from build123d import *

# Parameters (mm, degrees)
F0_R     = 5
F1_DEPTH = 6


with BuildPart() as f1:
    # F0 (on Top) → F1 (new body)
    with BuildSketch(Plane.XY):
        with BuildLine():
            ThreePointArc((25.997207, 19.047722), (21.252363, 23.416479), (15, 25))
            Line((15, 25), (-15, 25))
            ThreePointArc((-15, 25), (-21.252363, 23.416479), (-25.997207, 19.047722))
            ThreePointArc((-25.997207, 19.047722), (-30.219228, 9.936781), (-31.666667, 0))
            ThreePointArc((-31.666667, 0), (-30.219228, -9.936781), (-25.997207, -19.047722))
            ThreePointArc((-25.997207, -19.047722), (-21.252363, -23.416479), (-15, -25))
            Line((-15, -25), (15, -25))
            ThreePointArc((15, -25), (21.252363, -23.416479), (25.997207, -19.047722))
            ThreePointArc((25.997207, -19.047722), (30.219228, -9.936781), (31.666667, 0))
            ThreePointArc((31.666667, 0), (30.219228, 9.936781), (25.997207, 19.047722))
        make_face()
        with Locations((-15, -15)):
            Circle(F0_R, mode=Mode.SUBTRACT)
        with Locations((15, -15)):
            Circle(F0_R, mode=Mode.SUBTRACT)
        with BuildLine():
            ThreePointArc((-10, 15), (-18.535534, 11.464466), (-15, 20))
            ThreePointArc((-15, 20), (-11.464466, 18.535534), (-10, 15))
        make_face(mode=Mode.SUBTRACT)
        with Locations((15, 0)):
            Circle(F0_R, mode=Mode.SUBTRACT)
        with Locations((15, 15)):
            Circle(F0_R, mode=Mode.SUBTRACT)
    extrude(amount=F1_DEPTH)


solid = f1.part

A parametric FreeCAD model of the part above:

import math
import FreeCAD as App
import Part
import Sketcher
from FreeCAD import Vector

doc = App.newDocument("Part")
body = doc.addObject("PartDesign::Body", "Body")

# Sketch on XY plane
sketch1 = doc.addObject("Sketcher::SketchObject", "Sketch")
body.addObject(sketch1)
sketch1.AttachmentSupport = (doc.XY_Plane, [""])
sketch1.MapMode = "FlatFace"
sketch1.addGeometry([
    Part.ArcOfCircle(Part.Circle(Vector(15, 11.9, 0), Vector(0, 0, 1), 13.1), math.radians(33), math.radians(90)),  # 0
    Part.LineSegment(Vector(15, 25, 0), Vector(-15, 25, 0)),  # 1
    Part.ArcOfCircle(Part.Circle(Vector(-15, 11.9, 0), Vector(0, 0, 1), 13.1), math.radians(90), math.radians(147)),  # 2
    Part.ArcOfCircle(Part.Circle(Vector(3.2, 0, 0), Vector(0, 0, 1), 34.8), math.radians(147), math.radians(180)),  # 3
    Part.ArcOfCircle(Part.Circle(Vector(3.2, 0, 0), Vector(0, 0, 1), 34.8), math.radians(-180), math.radians(-147)),  # 4
    Part.ArcOfCircle(Part.Circle(Vector(-15, -11.9, 0), Vector(0, 0, 1), 13.1), math.radians(-147), math.radians(-90)),  # 5
    Part.LineSegment(Vector(-15, -25, 0), Vector(15, -25, 0)),  # 6
    Part.ArcOfCircle(Part.Circle(Vector(15, -11.9, 0), Vector(0, 0, 1), 13.1), math.radians(-90), math.radians(-33)),  # 7
    Part.ArcOfCircle(Part.Circle(Vector(-3.2, 0, 0), Vector(0, 0, 1), 34.8), math.radians(-33), math.radians(0)),  # 8
    Part.ArcOfCircle(Part.Circle(Vector(-3.2, 0, 0), Vector(0, 0, 1), 34.8), math.radians(0), math.radians(33)),  # 9
    Part.Circle(Vector(-15, -15, 0), Vector(0, 0, 1), 5),  # 10
    Part.Circle(Vector(15, -15, 0), Vector(0, 0, 1), 5),  # 11
    Part.Circle(Vector(15, 0, 0), Vector(0, 0, 1), 5),  # 12
    Part.ArcOfCircle(Part.Circle(Vector(-15, 15, 0), Vector(0, 0, 1), 5), math.radians(0), math.radians(90)),  # 13
    Part.ArcOfCircle(Part.Circle(Vector(-15, 15, 0), Vector(0, 0, 1), 5), math.radians(90), math.radians(360)),  # 14
    Part.Circle(Vector(15, 15, 0), Vector(0, 0, 1), 5),  # 15
], False)
sketch1.addConstraint([
    Sketcher.Constraint("Tangent", 0, 2, 1, 1),
    Sketcher.Constraint("Tangent", 1, 2, 2, 1),
    Sketcher.Constraint("Tangent", 2, 2, 3, 1),
    Sketcher.Constraint("Tangent", 3, 2, 4, 1),
    Sketcher.Constraint("Tangent", 4, 2, 5, 1),
    Sketcher.Constraint("Tangent", 5, 2, 6, 1),
    Sketcher.Constraint("Tangent", 6, 2, 7, 1),
    Sketcher.Constraint("Tangent", 7, 2, 8, 1),
    Sketcher.Constraint("Tangent", 8, 2, 9, 1),
    Sketcher.Constraint("Tangent", 9, 2, 0, 1),
    Sketcher.Constraint("Tangent", 13, 1, 14, 2),
    Sketcher.Constraint("Coincident", 14, 1, 13, 2),
    Sketcher.Constraint("Horizontal", 1),
    Sketcher.Constraint("Horizontal", 6),
    Sketcher.Constraint("Equal", 0, 2),
    Sketcher.Constraint("Equal", 3, 4),
    Sketcher.Constraint("Equal", 2, 5),
    Sketcher.Constraint("Equal", 5, 7),
    Sketcher.Constraint("Equal", 4, 8),
    Sketcher.Constraint("Equal", 8, 9),
    Sketcher.Constraint("Equal", 10, 11),
    Sketcher.Constraint("Equal", 11, 12),
    Sketcher.Constraint("Equal", 12, 13),
    Sketcher.Constraint("Equal", 14, 15),
    Sketcher.Constraint("Symmetric", 0, 3, 5, 3, -1, 1),
    Sketcher.Constraint("Symmetric", 11, 3, 13, 3, -1, 1),
    Sketcher.Constraint("Symmetric", 10, 3, 15, 3, -1, 1),
    Sketcher.Constraint("Symmetric", 3, 2, 8, 2, -1, 1),
    Sketcher.Constraint("Symmetric", 10, 3, 11, 3, -2),
    Sketcher.Constraint("PointOnObject", 3, 3, -1),
    Sketcher.Constraint("PointOnObject", 12, 3, -1),
    Sketcher.Constraint("PointOnObject", 3, 2, -1),
    Sketcher.Constraint("Horizontal", 15, 3, 13, 1),
    Sketcher.Constraint("Vertical", 5, 3, 10, 3),
    Sketcher.Constraint("Vertical", 11, 3, 12, 3),
    Sketcher.Constraint("Vertical", 5, 2, 14, 1),
    Sketcher.Constraint("Diameter", 10, 10.0),
    Sketcher.Constraint("DistanceX", 1, 2, 1, 1, 30.0),
    Sketcher.Constraint("DistanceY", 10, 3, -1, 1, 15.0),
    Sketcher.Constraint("DistanceY", -1, 1, 0, 2, 25.0),
    Sketcher.Constraint("Radius", 3, 34.832111),
    Sketcher.Constraint("Radius", 0, 13.135155),
])
pad1 = doc.addObject("PartDesign::Pad", "Pad")
body.addObject(pad1)
pad1.Profile = sketch1
pad1.Length = 6

doc.recompute()
